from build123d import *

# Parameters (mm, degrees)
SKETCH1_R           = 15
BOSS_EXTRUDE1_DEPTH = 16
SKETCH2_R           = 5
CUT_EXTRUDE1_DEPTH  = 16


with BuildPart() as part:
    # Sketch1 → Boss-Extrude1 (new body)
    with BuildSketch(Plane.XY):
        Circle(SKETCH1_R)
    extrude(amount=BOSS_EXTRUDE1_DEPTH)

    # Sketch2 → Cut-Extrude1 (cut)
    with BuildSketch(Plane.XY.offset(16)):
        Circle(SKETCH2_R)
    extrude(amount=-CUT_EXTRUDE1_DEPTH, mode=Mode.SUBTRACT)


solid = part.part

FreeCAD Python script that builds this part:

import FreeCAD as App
import Part
import Sketcher
from FreeCAD import Vector
Q = App.Units.Quantity

doc = App.newDocument("Part")
body = doc.addObject("PartDesign::Body", "Body")

# Sketch on XY plane
sketch1 = body.newObject("Sketcher::SketchObject", "Sketch")
sketch1.AttachmentSupport = (doc.getObject("XY_Plane"), [""])
sketch1.MapMode = "FlatFace"
sketch1.addGeometry(Part.Circle(Vector(0, 0, 0), Vector(0, 0, 1), 15), False)
sketch1.addConstraint([
    Sketcher.Constraint("Coincident", 0, 3, -1, 1),
    Sketcher.Constraint("Diameter", 0, Q("30 mm")),
])
pad1 = body.newObject("PartDesign::Pad", "Pad")
pad1.Profile = sketch1
pad1.Length = 16

# Sketch on XY plane
sketch2 = body.newObject("Sketcher::SketchObject", "Sketch001")
sketch2.AttachmentSupport = (doc.getObject("XY_Plane"), [""])
sketch2.MapMode = "FlatFace"
sketch2.AttachmentOffset = App.Placement(Vector(0, 0, 16), App.Rotation())
sketch2.addGeometry(Part.Circle(Vector(0, 0, 0), Vector(0, 0, 1), 5), False)
sketch2.addConstraint([
    Sketcher.Constraint("Coincident", 0, 3, -1, 1),
    Sketcher.Constraint("Diameter", 0, Q("10 mm")),
])
pocket1 = body.newObject("PartDesign::Pocket", "Pocket")
pocket1.Profile = sketch2
pocket1.Length = 16

doc.recompute()
